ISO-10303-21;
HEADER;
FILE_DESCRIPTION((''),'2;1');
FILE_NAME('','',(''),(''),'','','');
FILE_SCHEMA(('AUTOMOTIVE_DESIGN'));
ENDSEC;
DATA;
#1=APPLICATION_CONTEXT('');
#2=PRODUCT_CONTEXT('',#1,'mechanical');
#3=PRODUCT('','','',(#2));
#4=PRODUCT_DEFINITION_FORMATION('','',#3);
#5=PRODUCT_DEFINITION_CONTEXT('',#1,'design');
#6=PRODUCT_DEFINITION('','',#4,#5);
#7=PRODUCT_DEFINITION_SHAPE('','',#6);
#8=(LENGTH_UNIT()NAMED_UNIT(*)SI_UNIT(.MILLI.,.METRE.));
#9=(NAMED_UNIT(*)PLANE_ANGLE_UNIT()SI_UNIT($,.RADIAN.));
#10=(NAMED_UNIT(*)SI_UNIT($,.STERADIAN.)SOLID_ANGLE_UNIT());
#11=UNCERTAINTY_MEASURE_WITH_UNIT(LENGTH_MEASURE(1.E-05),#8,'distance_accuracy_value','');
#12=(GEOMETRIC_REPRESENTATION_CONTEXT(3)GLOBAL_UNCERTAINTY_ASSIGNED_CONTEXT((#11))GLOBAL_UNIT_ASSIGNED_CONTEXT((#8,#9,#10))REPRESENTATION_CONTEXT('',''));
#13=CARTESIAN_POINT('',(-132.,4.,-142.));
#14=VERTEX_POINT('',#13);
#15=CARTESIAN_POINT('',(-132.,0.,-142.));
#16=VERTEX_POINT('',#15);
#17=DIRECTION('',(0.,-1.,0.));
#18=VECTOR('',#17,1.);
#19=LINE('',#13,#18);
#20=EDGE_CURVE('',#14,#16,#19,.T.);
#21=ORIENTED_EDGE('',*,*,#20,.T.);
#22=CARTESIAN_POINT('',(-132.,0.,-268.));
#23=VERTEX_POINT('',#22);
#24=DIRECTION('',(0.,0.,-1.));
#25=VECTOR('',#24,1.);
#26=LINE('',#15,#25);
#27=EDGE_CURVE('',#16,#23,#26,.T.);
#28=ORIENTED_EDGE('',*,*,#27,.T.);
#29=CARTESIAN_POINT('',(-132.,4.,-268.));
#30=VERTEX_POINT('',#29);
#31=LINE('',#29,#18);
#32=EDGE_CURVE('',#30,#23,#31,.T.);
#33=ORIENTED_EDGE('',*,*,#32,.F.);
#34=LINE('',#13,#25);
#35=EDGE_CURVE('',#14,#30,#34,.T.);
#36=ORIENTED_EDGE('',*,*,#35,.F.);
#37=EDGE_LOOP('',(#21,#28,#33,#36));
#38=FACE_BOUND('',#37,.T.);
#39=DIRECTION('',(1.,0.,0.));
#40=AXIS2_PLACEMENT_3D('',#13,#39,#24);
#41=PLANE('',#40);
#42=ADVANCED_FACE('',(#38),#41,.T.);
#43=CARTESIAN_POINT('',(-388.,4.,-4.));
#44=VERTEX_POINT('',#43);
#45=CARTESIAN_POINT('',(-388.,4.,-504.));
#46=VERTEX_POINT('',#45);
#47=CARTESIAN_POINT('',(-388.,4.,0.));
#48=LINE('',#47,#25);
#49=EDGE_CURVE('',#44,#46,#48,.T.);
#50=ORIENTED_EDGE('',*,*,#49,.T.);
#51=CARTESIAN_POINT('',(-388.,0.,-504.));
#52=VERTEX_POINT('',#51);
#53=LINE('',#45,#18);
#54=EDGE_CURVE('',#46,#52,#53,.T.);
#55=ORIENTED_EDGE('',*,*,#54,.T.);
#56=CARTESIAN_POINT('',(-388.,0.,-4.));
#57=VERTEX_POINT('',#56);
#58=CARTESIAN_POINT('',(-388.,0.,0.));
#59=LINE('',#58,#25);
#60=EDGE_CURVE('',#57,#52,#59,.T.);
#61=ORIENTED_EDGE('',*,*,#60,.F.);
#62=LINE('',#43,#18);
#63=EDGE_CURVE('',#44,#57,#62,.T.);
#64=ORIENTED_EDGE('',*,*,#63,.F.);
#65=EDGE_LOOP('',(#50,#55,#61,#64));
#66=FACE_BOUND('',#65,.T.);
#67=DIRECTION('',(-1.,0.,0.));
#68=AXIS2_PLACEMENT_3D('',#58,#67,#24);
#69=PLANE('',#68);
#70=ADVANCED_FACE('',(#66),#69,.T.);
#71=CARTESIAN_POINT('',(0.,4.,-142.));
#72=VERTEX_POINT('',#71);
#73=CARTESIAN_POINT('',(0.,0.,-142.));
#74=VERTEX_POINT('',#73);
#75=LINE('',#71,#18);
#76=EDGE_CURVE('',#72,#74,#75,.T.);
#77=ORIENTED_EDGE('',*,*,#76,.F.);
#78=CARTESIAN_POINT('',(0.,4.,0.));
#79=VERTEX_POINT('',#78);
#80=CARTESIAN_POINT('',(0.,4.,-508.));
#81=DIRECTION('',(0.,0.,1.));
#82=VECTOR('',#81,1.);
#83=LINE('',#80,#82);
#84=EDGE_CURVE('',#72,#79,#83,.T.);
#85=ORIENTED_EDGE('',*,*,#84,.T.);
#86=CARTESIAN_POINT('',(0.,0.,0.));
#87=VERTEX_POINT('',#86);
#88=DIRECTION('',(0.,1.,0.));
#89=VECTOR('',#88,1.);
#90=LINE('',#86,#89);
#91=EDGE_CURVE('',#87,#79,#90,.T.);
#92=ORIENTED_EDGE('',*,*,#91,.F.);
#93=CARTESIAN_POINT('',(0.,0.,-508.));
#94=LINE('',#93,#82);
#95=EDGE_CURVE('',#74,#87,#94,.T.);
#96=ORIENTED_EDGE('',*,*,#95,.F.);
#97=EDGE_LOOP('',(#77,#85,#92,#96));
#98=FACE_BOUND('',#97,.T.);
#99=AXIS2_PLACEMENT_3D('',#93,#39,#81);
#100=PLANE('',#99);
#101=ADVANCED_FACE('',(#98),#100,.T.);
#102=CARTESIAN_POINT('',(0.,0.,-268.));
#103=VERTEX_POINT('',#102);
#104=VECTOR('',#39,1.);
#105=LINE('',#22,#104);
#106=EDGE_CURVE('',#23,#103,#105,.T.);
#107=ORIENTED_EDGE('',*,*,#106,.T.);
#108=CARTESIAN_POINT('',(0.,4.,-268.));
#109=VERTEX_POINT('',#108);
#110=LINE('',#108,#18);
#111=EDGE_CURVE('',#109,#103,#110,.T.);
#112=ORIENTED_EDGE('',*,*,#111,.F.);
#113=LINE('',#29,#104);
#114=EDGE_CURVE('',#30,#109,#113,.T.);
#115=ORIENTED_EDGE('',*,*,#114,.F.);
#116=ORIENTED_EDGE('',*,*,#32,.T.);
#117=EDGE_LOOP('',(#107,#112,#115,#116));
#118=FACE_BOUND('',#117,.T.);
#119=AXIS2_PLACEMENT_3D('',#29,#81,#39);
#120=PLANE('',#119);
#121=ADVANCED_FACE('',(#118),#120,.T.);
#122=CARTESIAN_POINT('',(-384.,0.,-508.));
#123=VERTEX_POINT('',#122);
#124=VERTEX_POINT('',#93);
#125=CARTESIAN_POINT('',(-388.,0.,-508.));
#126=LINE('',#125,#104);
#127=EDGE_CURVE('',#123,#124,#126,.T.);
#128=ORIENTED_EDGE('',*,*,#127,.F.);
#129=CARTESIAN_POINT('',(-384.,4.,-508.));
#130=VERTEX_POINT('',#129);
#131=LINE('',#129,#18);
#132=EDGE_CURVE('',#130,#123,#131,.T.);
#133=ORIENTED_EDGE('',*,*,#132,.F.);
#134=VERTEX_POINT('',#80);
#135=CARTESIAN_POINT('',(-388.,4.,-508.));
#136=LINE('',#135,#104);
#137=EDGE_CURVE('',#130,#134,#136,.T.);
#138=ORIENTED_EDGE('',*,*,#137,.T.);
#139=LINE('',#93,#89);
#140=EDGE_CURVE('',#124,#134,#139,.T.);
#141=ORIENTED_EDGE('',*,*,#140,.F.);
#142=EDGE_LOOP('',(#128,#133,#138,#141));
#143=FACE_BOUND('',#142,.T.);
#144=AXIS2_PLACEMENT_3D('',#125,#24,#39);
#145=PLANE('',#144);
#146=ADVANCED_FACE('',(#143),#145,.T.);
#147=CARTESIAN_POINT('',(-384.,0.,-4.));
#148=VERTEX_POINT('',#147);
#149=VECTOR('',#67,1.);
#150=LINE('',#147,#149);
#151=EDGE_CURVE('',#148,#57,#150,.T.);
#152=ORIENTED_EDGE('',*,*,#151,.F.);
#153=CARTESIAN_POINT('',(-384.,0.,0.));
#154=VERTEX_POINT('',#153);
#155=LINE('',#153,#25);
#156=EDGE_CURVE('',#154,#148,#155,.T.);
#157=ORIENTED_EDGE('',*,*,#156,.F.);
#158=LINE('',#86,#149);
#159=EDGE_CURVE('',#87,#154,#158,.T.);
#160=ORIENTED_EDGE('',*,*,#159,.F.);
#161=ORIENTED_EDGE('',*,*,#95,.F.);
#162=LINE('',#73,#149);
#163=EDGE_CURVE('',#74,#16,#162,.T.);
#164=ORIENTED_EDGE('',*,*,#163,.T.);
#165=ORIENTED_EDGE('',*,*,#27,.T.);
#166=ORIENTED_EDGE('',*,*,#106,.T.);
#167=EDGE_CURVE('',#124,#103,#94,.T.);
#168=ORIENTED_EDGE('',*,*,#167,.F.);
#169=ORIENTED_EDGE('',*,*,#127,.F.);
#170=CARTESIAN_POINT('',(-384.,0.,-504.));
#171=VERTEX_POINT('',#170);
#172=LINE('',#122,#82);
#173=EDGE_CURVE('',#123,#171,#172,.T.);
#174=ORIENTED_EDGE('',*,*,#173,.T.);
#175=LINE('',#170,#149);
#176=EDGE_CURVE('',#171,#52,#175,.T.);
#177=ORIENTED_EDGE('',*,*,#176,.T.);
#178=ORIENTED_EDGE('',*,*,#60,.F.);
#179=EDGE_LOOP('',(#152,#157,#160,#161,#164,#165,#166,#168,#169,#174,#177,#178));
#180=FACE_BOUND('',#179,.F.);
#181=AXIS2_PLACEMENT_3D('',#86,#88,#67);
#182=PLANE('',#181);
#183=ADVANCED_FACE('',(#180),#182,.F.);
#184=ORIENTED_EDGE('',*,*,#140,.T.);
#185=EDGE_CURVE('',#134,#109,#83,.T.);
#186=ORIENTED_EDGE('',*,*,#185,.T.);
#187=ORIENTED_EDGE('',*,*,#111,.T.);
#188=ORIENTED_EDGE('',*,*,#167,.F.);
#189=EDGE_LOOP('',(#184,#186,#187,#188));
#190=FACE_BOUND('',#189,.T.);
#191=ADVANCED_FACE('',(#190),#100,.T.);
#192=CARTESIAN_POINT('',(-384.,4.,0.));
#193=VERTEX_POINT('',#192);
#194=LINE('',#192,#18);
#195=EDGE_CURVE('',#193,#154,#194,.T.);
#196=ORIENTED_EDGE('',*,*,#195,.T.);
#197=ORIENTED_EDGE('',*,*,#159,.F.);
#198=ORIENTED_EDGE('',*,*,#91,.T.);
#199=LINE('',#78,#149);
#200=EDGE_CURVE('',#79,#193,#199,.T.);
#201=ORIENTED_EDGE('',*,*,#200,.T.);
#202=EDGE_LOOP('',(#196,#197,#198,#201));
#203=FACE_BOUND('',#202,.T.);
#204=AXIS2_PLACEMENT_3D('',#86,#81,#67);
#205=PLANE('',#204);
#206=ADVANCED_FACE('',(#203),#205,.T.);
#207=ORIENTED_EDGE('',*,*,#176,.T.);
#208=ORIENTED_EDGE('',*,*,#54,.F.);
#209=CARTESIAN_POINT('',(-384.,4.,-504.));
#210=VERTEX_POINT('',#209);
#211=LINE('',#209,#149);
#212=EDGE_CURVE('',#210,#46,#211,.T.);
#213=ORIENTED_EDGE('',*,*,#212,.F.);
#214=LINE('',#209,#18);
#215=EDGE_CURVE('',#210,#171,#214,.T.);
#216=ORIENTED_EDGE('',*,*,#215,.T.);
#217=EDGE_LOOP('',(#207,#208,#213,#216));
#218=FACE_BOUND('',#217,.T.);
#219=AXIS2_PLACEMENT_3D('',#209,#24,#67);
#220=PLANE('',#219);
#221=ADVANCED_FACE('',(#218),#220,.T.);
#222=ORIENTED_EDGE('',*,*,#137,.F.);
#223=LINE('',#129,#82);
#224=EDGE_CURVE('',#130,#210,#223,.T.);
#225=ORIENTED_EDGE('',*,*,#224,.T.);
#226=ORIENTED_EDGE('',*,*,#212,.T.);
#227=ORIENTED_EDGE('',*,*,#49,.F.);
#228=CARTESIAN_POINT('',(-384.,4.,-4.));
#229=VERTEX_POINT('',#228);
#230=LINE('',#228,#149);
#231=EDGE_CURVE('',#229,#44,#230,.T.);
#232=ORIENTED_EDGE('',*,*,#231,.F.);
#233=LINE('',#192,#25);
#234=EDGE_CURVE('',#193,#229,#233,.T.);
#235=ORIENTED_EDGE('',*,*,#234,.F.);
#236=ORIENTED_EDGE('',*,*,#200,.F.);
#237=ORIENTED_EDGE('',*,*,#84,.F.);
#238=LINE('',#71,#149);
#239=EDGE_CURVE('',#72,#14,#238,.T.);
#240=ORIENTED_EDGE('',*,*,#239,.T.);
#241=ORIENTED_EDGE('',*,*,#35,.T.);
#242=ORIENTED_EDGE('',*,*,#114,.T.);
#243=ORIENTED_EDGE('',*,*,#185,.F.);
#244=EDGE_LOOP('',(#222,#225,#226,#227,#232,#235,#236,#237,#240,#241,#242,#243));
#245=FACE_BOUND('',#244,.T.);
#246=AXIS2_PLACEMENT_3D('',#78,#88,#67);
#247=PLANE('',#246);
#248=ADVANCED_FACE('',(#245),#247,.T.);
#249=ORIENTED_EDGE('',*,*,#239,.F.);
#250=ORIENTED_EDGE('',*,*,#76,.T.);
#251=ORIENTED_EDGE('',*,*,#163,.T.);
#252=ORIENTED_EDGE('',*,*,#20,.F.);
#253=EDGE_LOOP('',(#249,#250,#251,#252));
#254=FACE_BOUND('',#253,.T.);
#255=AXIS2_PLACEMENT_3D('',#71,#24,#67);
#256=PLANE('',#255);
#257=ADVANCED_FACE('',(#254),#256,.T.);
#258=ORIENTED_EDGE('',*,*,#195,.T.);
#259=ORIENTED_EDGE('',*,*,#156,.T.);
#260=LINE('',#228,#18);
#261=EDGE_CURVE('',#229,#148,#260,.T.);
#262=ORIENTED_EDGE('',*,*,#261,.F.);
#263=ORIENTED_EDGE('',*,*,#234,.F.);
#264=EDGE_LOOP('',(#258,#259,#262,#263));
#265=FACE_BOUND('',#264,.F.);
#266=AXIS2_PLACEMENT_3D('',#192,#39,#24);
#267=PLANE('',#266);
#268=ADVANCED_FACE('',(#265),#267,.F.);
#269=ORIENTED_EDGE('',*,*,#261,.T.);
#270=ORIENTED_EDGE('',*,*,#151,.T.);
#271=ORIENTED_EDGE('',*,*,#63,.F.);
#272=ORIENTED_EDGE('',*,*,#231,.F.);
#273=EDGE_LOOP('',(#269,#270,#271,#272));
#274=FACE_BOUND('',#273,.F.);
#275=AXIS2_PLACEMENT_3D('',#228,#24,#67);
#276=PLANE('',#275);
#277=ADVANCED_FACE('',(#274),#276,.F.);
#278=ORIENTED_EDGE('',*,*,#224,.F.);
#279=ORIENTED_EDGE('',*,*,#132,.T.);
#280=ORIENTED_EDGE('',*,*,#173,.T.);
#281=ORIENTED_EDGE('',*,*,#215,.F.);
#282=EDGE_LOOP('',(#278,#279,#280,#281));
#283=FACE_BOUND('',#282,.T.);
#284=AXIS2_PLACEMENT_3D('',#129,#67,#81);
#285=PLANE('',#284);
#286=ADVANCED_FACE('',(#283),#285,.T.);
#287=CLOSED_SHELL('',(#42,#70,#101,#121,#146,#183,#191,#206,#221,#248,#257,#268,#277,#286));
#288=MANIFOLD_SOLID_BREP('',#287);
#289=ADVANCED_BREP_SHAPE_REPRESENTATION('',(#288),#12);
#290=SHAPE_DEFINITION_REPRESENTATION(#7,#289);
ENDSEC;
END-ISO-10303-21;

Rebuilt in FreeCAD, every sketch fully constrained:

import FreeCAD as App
import Part
import Sketcher

V = App.Vector


def add_polygon(sketch, points):
    """Adds a closed chain of lines whose ends are joined by coincident constraints."""
    first, n = sketch.GeometryCount, len(points)
    for a, b in zip(points, points[1:] + points[:1]):
        sketch.addGeometry(Part.LineSegment(App.Vector(*a, 0), App.Vector(*b, 0)), False)
    for i in range(n):
        sketch.addConstraint(Sketcher.Constraint("Coincident", first + i, 2, first + (i + 1) % n, 1))

doc = App.newDocument("Part")
body = doc.addObject("PartDesign::Body", "Body")

sketch1 = body.newObject("Sketcher::SketchObject", "Sketch")
sketch1.AttachmentSupport = (doc.getObject("XZ_Plane"), [""])
sketch1.MapMode = "FlatFace"
add_polygon(sketch1, [(-388, 0), (0, 0), (0, -508), (-388, -508)])
sketch1.addConstraint(Sketcher.Constraint("Horizontal", 0))
sketch1.addConstraint(Sketcher.Constraint("Vertical", 1))
sketch1.addConstraint(Sketcher.Constraint("Horizontal", 2))
sketch1.addConstraint(Sketcher.Constraint("Vertical", 3))
sketch1.addConstraint(Sketcher.Constraint("Coincident", 0, 2, -1, 1))
sketch1.addConstraint(Sketcher.Constraint("DistanceX", 0, 1, 0, 2, 388.0))
sketch1.addConstraint(Sketcher.Constraint("DistanceY", 1, 2, 1, 1, 508.0))
pad1 = body.newObject("PartDesign::Pad", "Pad")
pad1.Profile = sketch1
pad1.Length = 4
pad1.Reversed = True

sketch2 = body.newObject("Sketcher::SketchObject", "Sketch001")
sketch2.AttachmentSupport = (doc.getObject("XZ_Plane"), [""])
sketch2.MapMode = "FlatFace"
sketch2.AttachmentOffset = App.Placement(V(0, 0, -4), App.Rotation())
add_polygon(sketch2, [(-132, -142), (0, -142), (0, -268), (-132, -268)])
sketch2.addConstraint(Sketcher.Constraint("Horizontal", 0))
sketch2.addConstraint(Sketcher.Constraint("Vertical", 1))
sketch2.addConstraint(Sketcher.Constraint("Horizontal", 2))
sketch2.addConstraint(Sketcher.Constraint("Vertical", 3))
sketch2.addConstraint(Sketcher.Constraint("PointOnObject", 0, 2, -2))
sketch2.addConstraint(Sketcher.Constraint("DistanceX", 0, 1, 0, 2, 132.0))
sketch2.addConstraint(Sketcher.Constraint("DistanceY", 1, 2, 1, 1, 126.0))
sketch2.addConstraint(Sketcher.Constraint("DistanceY", 0, 2, -1, 1, 142.0))
pocket1 = body.newObject("PartDesign::Pocket", "Pocket")
pocket1.Profile = sketch2
pocket1.Length = 4
pocket1.Reversed = True

sketch3 = body.newObject("Sketcher::SketchObject", "Sketch002")
sketch3.AttachmentSupport = (doc.getObject("XZ_Plane"), [""])
sketch3.MapMode = "FlatFace"
sketch3.AttachmentOffset = App.Placement(V(0, 0, -4), App.Rotation())
add_polygon(sketch3, [(-388, -4), (-388, 0), (-384, 0), (-384, -4)])
add_polygon(sketch3, [(-388, -508), (-388, -504), (-384, -504), (-384, -508)])
sketch3.addConstraint(Sketcher.Constraint("Vertical", 0))
sketch3.addConstraint(Sketcher.Constraint("Horizontal", 1))
sketch3.addConstraint(Sketcher.Constraint("Vertical", 2))
sketch3.addConstraint(Sketcher.Constraint("Horizontal", 3))
sketch3.addConstraint(Sketcher.Constraint("Vertical", 4))
sketch3.addConstraint(Sketcher.Constraint("Horizontal", 5))
sketch3.addConstraint(Sketcher.Constraint("Vertical", 6))
sketch3.addConstraint(Sketcher.Constraint("Horizontal", 7))
sketch3.addConstraint(Sketcher.Constraint("PointOnObject", 0, 2, -1))
sketch3.addConstraint(Sketcher.Constraint("Vertical", 3, 2, 4, 2))
sketch3.addConstraint(Sketcher.Constraint("Vertical", 2, 2, 5, 2))
sketch3.addConstraint(Sketcher.Constraint("Equal", 7, 0))
sketch3.addConstraint(Sketcher.Constraint("Equal", 2, 4))
sketch3.addConstraint(Sketcher.Constraint("DistanceX", 1, 1, 1, 2, 4.0))
sketch3.addConstraint(Sketcher.Constraint("DistanceX", 0, 2, -1, 1, 388.0))
sketch3.addConstraint(Sketcher.Constraint("DistanceY", 4, 2, -1, 1, 504.0))
pocket2 = body.newObject("PartDesign::Pocket", "Pocket001")
pocket2.Profile = sketch3
pocket2.Length = 4
pocket2.Reversed = True

doc.recompute()
